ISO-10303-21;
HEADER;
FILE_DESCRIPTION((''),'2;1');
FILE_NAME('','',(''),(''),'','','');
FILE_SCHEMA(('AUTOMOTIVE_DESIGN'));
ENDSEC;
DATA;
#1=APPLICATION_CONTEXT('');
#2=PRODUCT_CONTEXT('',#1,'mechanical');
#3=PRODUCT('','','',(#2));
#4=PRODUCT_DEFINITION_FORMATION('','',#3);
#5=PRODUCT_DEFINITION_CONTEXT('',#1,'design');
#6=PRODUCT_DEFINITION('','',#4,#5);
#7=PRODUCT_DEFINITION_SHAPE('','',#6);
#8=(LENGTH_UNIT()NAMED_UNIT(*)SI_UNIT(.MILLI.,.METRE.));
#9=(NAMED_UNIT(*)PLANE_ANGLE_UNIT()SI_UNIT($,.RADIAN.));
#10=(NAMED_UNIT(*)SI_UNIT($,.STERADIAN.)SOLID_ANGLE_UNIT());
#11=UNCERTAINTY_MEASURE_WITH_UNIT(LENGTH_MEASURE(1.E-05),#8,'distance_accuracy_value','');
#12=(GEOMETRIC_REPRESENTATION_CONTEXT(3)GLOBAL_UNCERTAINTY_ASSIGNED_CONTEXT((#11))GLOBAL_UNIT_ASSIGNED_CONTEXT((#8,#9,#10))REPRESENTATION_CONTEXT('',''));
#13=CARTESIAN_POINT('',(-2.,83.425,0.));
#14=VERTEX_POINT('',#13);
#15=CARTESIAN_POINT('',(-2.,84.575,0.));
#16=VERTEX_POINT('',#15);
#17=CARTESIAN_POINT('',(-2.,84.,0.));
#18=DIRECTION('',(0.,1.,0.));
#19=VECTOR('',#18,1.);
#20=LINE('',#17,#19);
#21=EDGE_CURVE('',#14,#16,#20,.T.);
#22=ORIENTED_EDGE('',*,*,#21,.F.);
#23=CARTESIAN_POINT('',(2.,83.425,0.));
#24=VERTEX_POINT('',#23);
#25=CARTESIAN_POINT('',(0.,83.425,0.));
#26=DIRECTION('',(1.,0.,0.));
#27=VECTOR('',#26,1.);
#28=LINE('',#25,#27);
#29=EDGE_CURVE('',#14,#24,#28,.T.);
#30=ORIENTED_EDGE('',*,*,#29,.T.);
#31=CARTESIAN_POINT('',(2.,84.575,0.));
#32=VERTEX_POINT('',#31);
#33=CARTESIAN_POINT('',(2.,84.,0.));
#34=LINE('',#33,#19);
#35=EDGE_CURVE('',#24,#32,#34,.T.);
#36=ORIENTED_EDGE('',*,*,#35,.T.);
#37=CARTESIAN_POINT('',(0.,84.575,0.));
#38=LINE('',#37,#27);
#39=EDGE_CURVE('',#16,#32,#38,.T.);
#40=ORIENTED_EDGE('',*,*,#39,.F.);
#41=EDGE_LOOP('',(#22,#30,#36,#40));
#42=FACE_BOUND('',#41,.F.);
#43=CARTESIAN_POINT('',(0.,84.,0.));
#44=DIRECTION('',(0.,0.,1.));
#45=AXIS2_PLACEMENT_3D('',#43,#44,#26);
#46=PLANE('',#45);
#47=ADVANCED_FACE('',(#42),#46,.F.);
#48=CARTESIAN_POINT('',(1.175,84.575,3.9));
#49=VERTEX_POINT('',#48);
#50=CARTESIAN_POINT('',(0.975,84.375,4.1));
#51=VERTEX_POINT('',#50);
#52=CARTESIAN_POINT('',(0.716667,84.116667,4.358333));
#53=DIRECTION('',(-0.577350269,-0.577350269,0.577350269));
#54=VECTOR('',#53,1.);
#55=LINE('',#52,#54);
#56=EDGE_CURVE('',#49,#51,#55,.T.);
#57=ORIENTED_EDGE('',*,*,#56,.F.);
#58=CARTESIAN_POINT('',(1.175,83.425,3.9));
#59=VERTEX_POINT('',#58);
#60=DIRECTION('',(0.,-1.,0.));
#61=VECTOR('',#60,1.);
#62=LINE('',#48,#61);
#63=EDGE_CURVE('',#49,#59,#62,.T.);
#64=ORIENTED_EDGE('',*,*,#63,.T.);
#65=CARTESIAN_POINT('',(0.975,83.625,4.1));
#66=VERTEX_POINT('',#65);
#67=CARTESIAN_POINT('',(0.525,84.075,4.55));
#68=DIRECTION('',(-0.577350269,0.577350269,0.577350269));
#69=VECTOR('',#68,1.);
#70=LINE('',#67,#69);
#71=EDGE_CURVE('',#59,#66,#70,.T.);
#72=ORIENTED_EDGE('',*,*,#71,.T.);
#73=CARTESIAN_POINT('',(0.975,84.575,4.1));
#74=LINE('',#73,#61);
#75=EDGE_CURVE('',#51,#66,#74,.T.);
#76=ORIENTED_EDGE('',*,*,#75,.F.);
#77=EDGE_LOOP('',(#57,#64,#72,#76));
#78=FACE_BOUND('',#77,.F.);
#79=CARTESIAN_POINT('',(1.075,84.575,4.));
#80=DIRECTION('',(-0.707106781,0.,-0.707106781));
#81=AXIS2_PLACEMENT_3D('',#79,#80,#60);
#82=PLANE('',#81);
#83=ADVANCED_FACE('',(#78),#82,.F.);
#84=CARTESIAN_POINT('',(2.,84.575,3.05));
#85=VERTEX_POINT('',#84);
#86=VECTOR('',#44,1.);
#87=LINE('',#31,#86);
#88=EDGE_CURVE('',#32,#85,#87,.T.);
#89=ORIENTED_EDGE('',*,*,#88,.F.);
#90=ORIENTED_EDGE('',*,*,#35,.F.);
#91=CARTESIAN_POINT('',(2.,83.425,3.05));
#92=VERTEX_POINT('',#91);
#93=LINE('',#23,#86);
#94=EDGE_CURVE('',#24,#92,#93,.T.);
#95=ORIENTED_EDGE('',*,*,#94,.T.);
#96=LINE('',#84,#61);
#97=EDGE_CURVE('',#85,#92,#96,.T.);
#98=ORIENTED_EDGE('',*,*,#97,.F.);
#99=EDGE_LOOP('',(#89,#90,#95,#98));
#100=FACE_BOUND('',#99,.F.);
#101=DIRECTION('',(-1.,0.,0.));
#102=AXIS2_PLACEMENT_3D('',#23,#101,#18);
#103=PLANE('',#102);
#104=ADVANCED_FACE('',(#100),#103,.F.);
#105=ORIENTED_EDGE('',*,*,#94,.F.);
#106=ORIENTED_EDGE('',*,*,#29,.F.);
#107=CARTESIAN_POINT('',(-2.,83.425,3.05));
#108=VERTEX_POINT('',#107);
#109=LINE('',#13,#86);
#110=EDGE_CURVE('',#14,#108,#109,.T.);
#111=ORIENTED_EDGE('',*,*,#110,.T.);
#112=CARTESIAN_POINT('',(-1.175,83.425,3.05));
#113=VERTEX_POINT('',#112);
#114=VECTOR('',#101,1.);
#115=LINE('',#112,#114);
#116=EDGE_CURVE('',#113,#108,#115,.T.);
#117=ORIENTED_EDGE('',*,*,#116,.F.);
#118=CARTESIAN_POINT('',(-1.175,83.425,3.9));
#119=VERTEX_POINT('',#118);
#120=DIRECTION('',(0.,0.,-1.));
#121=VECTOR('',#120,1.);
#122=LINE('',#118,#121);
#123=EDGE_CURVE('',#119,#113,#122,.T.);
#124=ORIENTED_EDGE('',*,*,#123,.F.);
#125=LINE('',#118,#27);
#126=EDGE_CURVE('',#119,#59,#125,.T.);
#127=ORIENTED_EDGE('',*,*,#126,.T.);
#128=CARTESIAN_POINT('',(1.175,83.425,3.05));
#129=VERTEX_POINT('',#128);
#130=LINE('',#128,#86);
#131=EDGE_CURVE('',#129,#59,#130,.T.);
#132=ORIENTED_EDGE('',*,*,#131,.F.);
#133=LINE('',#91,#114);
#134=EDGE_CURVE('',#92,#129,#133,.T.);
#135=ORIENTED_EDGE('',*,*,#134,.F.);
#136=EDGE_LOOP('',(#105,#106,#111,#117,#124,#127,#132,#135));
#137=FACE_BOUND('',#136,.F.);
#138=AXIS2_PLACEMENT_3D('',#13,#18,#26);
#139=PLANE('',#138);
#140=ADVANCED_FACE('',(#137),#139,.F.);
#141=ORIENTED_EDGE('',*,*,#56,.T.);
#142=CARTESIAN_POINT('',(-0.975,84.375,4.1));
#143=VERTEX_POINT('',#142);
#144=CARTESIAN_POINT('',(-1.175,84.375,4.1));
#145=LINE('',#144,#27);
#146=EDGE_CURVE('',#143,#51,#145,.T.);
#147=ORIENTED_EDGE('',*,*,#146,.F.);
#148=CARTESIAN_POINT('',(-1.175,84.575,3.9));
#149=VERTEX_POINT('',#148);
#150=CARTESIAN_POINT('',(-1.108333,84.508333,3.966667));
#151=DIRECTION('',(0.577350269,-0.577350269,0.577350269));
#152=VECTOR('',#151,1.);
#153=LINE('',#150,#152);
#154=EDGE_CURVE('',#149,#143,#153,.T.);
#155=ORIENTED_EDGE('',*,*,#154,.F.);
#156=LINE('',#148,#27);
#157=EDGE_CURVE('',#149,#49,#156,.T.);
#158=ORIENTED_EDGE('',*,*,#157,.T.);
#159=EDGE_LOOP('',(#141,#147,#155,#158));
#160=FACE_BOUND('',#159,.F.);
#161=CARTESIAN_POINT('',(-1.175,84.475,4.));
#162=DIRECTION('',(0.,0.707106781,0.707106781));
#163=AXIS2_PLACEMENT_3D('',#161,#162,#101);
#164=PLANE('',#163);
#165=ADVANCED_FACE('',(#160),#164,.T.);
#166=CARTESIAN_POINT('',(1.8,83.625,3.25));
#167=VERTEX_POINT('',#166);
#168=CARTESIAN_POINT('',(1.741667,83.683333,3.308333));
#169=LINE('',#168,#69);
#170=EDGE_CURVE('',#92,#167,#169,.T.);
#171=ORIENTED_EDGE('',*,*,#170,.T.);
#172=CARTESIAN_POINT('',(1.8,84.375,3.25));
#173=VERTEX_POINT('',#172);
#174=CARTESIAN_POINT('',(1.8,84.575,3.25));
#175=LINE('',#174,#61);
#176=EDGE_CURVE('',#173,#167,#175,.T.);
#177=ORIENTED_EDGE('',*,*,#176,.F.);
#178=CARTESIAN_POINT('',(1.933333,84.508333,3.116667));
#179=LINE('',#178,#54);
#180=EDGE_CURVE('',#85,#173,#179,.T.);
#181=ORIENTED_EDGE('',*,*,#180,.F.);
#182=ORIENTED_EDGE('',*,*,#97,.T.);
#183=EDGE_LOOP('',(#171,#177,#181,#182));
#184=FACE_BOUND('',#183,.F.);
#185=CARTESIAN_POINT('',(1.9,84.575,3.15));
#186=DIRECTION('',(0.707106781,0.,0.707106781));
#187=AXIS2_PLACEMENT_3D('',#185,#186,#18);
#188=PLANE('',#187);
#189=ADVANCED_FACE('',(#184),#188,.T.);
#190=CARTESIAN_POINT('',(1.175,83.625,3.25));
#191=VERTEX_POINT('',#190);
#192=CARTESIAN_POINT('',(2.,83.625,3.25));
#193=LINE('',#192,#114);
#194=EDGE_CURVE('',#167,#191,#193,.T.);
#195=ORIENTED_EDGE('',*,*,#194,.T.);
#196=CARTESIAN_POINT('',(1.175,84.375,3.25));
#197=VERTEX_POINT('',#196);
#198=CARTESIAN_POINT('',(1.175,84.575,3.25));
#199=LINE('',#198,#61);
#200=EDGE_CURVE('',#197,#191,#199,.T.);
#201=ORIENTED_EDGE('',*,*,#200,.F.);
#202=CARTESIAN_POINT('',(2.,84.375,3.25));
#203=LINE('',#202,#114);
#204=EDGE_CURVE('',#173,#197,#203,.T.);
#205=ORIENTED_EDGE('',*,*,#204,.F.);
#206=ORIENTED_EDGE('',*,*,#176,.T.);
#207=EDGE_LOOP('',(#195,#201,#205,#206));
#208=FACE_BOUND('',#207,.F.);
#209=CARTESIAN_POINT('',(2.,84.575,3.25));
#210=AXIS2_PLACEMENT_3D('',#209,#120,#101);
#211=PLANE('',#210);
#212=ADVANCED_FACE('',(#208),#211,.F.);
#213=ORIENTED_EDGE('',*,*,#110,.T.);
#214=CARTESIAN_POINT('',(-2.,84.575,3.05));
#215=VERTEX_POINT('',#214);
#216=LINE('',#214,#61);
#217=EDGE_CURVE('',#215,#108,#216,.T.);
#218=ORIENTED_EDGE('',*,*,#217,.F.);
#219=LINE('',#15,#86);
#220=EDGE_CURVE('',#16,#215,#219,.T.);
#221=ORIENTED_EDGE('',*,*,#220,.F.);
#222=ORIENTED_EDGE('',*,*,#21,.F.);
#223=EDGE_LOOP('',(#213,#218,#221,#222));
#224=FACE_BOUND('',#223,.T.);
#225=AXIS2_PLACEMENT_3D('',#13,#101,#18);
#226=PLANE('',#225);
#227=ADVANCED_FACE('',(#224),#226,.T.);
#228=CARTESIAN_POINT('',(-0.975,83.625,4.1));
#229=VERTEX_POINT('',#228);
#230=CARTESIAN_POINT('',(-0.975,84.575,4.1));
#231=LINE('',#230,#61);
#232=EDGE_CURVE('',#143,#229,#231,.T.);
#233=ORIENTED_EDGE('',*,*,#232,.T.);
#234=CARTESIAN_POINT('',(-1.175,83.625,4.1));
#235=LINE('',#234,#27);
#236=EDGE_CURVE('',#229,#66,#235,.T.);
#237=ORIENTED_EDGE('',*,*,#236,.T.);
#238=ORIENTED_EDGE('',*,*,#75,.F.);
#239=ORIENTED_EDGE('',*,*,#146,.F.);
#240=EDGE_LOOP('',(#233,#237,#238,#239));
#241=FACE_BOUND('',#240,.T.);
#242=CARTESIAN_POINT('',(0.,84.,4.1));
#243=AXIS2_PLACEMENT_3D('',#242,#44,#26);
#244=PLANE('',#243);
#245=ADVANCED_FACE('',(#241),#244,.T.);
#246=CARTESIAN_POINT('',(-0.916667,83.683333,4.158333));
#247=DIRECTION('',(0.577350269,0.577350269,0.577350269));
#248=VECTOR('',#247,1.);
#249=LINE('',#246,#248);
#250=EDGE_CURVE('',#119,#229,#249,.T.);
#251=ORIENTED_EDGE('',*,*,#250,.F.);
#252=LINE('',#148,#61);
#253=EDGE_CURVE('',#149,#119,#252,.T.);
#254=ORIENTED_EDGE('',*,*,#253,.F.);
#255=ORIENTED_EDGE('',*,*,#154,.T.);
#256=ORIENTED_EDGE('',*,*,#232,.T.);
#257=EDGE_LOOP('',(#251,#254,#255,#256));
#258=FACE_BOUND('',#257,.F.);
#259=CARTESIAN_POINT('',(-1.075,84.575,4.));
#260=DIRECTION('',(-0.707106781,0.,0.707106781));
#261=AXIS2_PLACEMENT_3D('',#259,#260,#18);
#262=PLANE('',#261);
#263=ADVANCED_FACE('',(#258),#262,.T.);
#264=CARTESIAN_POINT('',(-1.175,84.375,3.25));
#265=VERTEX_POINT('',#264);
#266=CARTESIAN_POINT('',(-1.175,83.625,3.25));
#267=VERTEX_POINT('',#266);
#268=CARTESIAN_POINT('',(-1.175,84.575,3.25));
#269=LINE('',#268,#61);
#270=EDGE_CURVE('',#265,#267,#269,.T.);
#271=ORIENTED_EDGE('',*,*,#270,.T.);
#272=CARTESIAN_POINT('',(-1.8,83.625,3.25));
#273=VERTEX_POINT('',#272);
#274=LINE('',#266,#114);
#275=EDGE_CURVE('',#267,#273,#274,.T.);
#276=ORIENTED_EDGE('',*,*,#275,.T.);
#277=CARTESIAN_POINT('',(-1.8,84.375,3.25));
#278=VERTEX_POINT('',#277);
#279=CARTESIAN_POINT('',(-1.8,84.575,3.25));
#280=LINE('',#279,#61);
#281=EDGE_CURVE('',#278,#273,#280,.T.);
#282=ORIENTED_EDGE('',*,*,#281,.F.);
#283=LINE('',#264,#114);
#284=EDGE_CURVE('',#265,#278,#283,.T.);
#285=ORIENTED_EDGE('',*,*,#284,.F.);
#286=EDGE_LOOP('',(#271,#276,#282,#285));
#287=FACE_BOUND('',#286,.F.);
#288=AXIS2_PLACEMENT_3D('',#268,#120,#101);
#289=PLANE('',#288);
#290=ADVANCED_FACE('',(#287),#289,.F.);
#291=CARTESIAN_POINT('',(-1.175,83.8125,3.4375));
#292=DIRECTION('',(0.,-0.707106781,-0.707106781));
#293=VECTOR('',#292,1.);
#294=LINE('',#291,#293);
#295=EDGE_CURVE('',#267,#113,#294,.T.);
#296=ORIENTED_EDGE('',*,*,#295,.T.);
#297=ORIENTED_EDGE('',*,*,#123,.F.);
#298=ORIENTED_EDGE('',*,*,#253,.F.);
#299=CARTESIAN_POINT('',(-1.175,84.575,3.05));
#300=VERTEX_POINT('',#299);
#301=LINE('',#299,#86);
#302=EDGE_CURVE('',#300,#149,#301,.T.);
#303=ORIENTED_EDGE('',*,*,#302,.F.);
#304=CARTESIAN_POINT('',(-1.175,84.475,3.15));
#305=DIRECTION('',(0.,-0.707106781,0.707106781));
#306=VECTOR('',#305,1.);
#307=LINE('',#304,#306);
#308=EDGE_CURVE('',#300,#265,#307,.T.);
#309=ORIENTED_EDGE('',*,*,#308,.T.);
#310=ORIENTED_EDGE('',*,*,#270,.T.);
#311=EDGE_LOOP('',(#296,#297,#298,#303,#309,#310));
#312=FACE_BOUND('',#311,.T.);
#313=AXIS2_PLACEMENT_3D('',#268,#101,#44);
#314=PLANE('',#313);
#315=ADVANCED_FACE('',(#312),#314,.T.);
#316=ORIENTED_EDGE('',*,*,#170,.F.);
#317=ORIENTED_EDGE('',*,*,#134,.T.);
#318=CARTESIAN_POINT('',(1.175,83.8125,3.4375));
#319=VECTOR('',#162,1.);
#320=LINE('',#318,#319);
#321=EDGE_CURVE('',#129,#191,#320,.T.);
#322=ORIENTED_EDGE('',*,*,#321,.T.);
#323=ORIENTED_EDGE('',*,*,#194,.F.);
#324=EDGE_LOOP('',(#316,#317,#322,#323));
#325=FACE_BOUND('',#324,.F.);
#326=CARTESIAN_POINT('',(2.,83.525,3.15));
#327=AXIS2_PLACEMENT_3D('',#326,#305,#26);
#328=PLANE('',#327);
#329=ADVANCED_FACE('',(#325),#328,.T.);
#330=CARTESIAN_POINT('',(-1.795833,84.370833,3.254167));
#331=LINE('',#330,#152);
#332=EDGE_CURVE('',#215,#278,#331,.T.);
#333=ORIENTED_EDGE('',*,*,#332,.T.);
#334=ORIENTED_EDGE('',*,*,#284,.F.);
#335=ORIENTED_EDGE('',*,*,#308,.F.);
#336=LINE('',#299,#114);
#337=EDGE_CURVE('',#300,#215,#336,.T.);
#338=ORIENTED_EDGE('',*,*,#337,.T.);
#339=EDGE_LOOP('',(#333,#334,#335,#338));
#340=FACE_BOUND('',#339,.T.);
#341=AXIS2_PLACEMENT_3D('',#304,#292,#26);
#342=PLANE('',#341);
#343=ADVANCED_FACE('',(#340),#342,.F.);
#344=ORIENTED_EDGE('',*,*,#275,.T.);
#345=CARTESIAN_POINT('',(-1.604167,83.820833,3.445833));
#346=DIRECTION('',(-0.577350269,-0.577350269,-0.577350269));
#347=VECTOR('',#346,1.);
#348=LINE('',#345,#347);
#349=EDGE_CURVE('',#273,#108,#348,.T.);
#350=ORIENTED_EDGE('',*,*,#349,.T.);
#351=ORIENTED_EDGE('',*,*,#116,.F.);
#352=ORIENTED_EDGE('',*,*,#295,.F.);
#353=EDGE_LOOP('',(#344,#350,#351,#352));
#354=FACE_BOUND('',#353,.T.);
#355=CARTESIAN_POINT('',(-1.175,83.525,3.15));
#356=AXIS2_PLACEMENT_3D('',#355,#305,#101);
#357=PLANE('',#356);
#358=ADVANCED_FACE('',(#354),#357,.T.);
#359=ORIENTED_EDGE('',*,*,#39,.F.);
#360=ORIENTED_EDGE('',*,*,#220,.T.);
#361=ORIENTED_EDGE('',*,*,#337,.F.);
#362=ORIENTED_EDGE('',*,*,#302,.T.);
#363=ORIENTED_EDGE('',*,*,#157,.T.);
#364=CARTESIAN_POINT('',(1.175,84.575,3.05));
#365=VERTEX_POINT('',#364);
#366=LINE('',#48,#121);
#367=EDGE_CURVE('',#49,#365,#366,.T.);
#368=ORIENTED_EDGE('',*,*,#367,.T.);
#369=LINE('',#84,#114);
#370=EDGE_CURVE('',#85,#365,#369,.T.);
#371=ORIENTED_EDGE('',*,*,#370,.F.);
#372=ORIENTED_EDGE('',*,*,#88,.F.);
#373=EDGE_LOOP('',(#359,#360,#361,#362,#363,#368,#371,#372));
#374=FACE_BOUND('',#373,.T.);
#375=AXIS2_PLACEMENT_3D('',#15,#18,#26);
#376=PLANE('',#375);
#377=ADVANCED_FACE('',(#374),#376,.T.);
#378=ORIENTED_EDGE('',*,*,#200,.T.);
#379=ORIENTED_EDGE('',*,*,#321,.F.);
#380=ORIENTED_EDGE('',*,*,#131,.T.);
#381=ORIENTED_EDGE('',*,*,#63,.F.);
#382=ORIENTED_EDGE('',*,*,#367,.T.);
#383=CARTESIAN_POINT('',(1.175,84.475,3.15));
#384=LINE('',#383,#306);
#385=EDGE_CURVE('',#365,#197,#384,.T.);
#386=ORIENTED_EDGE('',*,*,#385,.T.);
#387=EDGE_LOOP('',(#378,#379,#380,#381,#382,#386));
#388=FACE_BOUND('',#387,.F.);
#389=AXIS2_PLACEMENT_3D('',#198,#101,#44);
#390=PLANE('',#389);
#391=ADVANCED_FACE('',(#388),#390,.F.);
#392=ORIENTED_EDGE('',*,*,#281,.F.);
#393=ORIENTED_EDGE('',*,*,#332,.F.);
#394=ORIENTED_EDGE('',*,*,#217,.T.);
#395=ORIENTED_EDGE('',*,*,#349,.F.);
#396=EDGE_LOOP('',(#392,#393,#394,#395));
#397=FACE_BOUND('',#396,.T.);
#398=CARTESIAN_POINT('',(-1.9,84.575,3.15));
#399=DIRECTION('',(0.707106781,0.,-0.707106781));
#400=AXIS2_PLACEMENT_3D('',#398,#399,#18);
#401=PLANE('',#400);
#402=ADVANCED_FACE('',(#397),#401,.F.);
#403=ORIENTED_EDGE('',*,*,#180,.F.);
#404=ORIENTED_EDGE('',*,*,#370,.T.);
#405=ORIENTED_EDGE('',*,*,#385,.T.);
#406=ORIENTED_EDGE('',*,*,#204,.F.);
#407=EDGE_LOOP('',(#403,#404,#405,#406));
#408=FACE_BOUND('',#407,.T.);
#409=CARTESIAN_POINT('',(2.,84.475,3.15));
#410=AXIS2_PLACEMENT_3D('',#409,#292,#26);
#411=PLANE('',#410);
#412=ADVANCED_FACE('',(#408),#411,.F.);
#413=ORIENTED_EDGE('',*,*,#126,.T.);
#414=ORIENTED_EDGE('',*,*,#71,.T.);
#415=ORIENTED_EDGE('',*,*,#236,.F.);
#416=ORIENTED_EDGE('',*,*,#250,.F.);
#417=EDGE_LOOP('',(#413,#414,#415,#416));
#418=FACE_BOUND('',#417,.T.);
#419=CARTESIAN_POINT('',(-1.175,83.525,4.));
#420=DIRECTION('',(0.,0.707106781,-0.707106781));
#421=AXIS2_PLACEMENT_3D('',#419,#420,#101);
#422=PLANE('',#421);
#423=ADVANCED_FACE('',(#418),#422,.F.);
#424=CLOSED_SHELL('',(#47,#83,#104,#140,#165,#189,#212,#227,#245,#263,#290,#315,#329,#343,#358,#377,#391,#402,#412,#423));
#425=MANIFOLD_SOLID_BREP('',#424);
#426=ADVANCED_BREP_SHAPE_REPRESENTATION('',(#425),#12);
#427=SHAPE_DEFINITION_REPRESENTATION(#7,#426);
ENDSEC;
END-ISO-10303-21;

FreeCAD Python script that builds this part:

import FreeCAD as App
import Part
import Sketcher

V = App.Vector


def edges_at(feature, points):
    """Names of the edges that pass closest to the given points."""
    edges = feature.Shape.Edges
    near = lambda p: min(range(len(edges)), key=lambda i: edges[i].distToShape(Part.Vertex(*p))[0])
    return sorted({f"Edge{near(p) + 1}" for p in points})

doc = App.newDocument("Part")
body = doc.addObject("PartDesign::Body", "Body")

sketch1 = body.newObject("Sketcher::SketchObject", "Sketch")
sketch1.AttachmentSupport = (doc.getObject("XY_Plane"), [""])
sketch1.MapMode = "FlatFace"
sketch1.addGeometry([
    Part.LineSegment(V(-2, 0.575, 0), V(-2, -0.575, 0)),
    Part.LineSegment(V(-2, -0.575, 0), V(2, -0.575, 0)),
    Part.LineSegment(V(2, -0.575, 0), V(2, 0.575, 0)),
    Part.LineSegment(V(2, 0.575, 0), V(-2, 0.575, 0)),
], False)
sketch1.addConstraint([
    Sketcher.Constraint("Coincident", 0, 2, 1, 1),
    Sketcher.Constraint("Coincident", 1, 2, 2, 1),
    Sketcher.Constraint("Coincident", 2, 2, 3, 1),
    Sketcher.Constraint("Coincident", 3, 2, 0, 1),
    Sketcher.Constraint("Vertical", 0),
    Sketcher.Constraint("Horizontal", 1),
    Sketcher.Constraint("Vertical", 2),
    Sketcher.Constraint("Horizontal", 3),
    Sketcher.Constraint("Symmetric", 0, 2, 2, 2, -1, 1),
    Sketcher.Constraint("DistanceX", 1, 1, 1, 2, 4.0),
    Sketcher.Constraint("DistanceY", 0, 2, 0, 1, 1.15),
])
pad1 = body.newObject("PartDesign::Pad", "Pad")
pad1.Profile = sketch1
pad1.Length = 4.1

sketch2 = body.newObject("Sketcher::SketchObject", "Sketch001")
sketch2.AttachmentSupport = (doc.getObject("XZ_Plane"), [""])
sketch2.MapMode = "FlatFace"
sketch2.AttachmentOffset = App.Placement(V(0, 0, -0.575), App.Rotation())
sketch2.addGeometry([
    Part.LineSegment(V(2, 4.1, 0), V(2, 3.25, 0)),
    Part.LineSegment(V(2, 3.25, 0), V(1.175, 3.25, 0)),
    Part.LineSegment(V(1.175, 3.25, 0), V(1.175, 4.1, 0)),
    Part.LineSegment(V(1.175, 4.1, 0), V(2, 4.1, 0)),
    Part.LineSegment(V(-1.175, 4.1, 0), V(-1.175, 3.25, 0)),
    Part.LineSegment(V(-1.175, 3.25, 0), V(-2, 3.25, 0)),
    Part.LineSegment(V(-2, 3.25, 0), V(-2, 4.1, 0)),
    Part.LineSegment(V(-2, 4.1, 0), V(-1.175, 4.1, 0)),
], False)
sketch2.addConstraint([
    Sketcher.Constraint("Coincident", 0, 2, 1, 1),
    Sketcher.Constraint("Coincident", 1, 2, 2, 1),
    Sketcher.Constraint("Coincident", 2, 2, 3, 1),
    Sketcher.Constraint("Coincident", 3, 2, 0, 1),
    Sketcher.Constraint("Coincident", 4, 2, 5, 1),
    Sketcher.Constraint("Coincident", 5, 2, 6, 1),
    Sketcher.Constraint("Coincident", 6, 2, 7, 1),
    Sketcher.Constraint("Coincident", 7, 2, 4, 1),
    Sketcher.Constraint("Vertical", 0),
    Sketcher.Constraint("Horizontal", 1),
    Sketcher.Constraint("Vertical", 2),
    Sketcher.Constraint("Horizontal", 3),
    Sketcher.Constraint("Vertical", 4),
    Sketcher.Constraint("Horizontal", 5),
    Sketcher.Constraint("Vertical", 6),
    Sketcher.Constraint("Horizontal", 7),
    Sketcher.Constraint("Symmetric", 1, 2, 4, 2, -2),
    Sketcher.Constraint("Symmetric", 3, 2, 6, 2, -2),
    Sketcher.Constraint("DistanceX", -1, 1, 0, 2, 2.0),
    Sketcher.Constraint("DistanceY", 0, 2, 0, 1, 0.85),
    Sketcher.Constraint("DistanceY", -1, 1, 2, 2, 4.1),
    Sketcher.Constraint("DistanceX", 1, 2, 1, 1, 0.825),
])
pocket1 = body.newObject("PartDesign::Pocket", "Pocket")
pocket1.Profile = sketch2
pocket1.Length = 5
pocket1.Reversed = True
doc.recompute()

chamfer = body.newObject("PartDesign::Chamfer", "Chamfer")
chamfer.Base = (pocket1, edges_at(pocket1, [
    (0, 0.575, 4.1),
    (0, -0.575, 4.1),
    (1.587, 0.575, 3.25),
    (-1.587, 0.575, 3.25),
    (-1.587, -0.575, 3.25),
    (1.587, -0.575, 3.25),
    (2, 0, 3.25),
    (-2, 0, 3.25),
    (1.175, 0, 4.1),
    (-1.175, 0, 4.1),
]))
chamfer.Size = 0.2
body2 = doc.addObject("PartDesign::Body", "Body001")
doc.recompute()

body.Placement = App.Placement(V(0, 84, 0), App.Rotation(V(0, 0, 1), 0))
boolean = body2.newObject("PartDesign::Boolean", "Boolean")
boolean.Type = "Fuse"
boolean.addObjects([body])

doc.recompute()
